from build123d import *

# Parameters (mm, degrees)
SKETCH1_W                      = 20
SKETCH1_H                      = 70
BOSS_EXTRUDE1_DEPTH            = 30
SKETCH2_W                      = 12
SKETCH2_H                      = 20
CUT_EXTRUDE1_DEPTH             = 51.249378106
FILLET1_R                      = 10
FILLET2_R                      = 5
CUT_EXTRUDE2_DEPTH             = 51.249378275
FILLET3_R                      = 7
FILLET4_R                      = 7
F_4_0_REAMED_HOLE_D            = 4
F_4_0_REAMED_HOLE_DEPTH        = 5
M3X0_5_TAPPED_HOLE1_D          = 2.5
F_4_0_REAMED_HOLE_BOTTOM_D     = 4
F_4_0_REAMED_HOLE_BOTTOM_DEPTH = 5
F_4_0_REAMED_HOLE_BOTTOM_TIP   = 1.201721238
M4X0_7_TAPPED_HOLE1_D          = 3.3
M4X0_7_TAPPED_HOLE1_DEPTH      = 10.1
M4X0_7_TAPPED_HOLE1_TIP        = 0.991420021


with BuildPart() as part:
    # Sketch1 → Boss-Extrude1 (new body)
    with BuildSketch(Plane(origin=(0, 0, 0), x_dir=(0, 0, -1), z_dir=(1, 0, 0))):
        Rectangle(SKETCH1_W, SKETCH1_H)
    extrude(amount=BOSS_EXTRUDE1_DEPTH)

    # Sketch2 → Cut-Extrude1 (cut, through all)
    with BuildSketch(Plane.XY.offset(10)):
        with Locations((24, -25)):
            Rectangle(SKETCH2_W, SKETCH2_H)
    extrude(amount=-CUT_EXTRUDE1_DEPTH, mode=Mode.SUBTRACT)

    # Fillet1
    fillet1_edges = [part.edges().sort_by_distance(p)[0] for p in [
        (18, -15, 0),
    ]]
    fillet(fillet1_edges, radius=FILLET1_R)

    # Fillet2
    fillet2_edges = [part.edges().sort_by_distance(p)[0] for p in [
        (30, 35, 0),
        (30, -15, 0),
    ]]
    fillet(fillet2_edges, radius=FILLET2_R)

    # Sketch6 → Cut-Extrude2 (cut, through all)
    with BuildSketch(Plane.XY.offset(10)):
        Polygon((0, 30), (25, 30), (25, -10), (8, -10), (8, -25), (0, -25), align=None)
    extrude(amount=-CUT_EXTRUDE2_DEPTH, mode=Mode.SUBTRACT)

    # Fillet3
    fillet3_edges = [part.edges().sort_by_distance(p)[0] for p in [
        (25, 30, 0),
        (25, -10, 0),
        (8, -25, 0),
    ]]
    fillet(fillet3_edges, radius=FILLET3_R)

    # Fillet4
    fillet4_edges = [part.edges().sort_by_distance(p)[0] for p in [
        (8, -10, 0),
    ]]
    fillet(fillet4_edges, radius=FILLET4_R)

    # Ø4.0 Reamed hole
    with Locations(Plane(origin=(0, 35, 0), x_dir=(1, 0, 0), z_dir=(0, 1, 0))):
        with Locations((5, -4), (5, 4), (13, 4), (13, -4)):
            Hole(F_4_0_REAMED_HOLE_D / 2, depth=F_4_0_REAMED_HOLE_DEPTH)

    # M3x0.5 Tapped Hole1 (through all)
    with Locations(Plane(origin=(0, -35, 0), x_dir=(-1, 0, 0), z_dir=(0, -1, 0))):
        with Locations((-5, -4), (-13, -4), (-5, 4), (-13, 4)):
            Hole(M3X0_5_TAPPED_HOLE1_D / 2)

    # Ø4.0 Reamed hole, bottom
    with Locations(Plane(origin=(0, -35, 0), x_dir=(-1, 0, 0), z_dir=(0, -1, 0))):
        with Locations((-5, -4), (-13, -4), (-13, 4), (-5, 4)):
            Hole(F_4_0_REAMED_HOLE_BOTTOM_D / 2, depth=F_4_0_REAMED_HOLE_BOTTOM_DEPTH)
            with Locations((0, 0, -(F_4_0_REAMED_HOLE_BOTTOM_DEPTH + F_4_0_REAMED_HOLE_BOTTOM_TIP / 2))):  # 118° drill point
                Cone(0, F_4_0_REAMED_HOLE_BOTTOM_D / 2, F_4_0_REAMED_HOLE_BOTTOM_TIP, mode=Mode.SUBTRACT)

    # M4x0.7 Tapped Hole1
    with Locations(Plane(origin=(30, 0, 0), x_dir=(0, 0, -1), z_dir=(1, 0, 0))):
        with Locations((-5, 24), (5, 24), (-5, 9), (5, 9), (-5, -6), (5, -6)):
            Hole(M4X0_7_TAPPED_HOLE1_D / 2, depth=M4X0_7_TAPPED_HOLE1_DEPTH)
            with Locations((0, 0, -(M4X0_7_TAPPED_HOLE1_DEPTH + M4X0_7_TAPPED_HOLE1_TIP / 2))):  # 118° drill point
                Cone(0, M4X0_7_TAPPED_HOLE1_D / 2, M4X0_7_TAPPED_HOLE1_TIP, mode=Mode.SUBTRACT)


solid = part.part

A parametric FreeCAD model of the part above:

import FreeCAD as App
import Part
import Sketcher
from FreeCAD import Vector
Q = App.Units.Quantity


def edges_at(feature, points):
    """Names of the edges that pass closest to the given points."""
    edges = feature.Shape.Edges
    near = lambda p: min(range(len(edges)), key=lambda i: edges[i].distToShape(Part.Vertex(*p))[0])
    return sorted({f"Edge{near(p) + 1}" for p in points})

doc = App.newDocument("Part")
body = doc.addObject("PartDesign::Body", "Body")

# Sketch on YZ plane
sketch1 = doc.addObject("Sketcher::SketchObject", "Sketch")
body.addObject(sketch1)
sketch1.AttachmentSupport = (doc.YZ_Plane, [""])
sketch1.MapMode = "FlatFace"
sketch1.addGeometry(Part.LineSegment(Vector(35, 10, 0), Vector(-35, 10, 0)), False)
sketch1.addGeometry(Part.LineSegment(Vector(-35, 10, 0), Vector(-35, -10, 0)), False)
sketch1.addGeometry(Part.LineSegment(Vector(-35, -10, 0), Vector(35, -10, 0)), False)
sketch1.addGeometry(Part.LineSegment(Vector(35, -10, 0), Vector(35, 10, 0)), False)
sketch1.addConstraint(Sketcher.Constraint("Coincident", 0, 2, 1, 1))
sketch1.addConstraint(Sketcher.Constraint("Coincident", 1, 2, 2, 1))
sketch1.addConstraint(Sketcher.Constraint("Coincident", 2, 2, 3, 1))
sketch1.addConstraint(Sketcher.Constraint("Coincident", 3, 2, 0, 1))
sketch1.addConstraint(Sketcher.Constraint("Horizontal", 0))
sketch1.addConstraint(Sketcher.Constraint("Vertical", 1))
sketch1.addConstraint(Sketcher.Constraint("Horizontal", 2))
sketch1.addConstraint(Sketcher.Constraint("Vertical", 3))
sketch1.addConstraint(Sketcher.Constraint("Symmetric", 0, 2, 2, 2, -1, 1))
sketch1.addConstraint(Sketcher.Constraint("DistanceX", 0, 2, 0, 1, Q("70 mm")))
sketch1.addConstraint(Sketcher.Constraint("DistanceY", 1, 2, 1, 1, Q("20 mm")))
pad1 = doc.addObject("PartDesign::Pad", "Pad")
body.addObject(pad1)
pad1.Profile = sketch1
pad1.Length = 30

# Sketch on XY plane
sketch2 = doc.addObject("Sketcher::SketchObject", "Sketch001")
body.addObject(sketch2)
sketch2.AttachmentSupport = (doc.XY_Plane, [""])
sketch2.MapMode = "FlatFace"
sketch2.AttachmentOffset = App.Placement(Vector(0, 0, 10), App.Rotation())
sketch2.addGeometry(Part.LineSegment(Vector(18, -15, 0), Vector(18, -35, 0)), False)
sketch2.addGeometry(Part.LineSegment(Vector(18, -35, 0), Vector(30, -35, 0)), False)
sketch2.addGeometry(Part.LineSegment(Vector(30, -35, 0), Vector(30, -15, 0)), False)
sketch2.addGeometry(Part.LineSegment(Vector(30, -15, 0), Vector(18, -15, 0)), False)
sketch2.addConstraint(Sketcher.Constraint("Coincident", 0, 2, 1, 1))
sketch2.addConstraint(Sketcher.Constraint("Coincident", 1, 2, 2, 1))
sketch2.addConstraint(Sketcher.Constraint("Coincident", 2, 2, 3, 1))
sketch2.addConstraint(Sketcher.Constraint("Coincident", 3, 2, 0, 1))
sketch2.addConstraint(Sketcher.Constraint("Vertical", 0))
sketch2.addConstraint(Sketcher.Constraint("Horizontal", 1))
sketch2.addConstraint(Sketcher.Constraint("Vertical", 2))
sketch2.addConstraint(Sketcher.Constraint("Horizontal", 3))
sketch2.addConstraint(Sketcher.Constraint("DistanceX", 1, 1, 1, 2, Q("12 mm")))
sketch2.addConstraint(Sketcher.Constraint("DistanceY", 0, 2, 0, 1, Q("20 mm")))
sketch2.addConstraint(Sketcher.Constraint("DistanceX", -1, 1, 0, 2, Q("18 mm")))
sketch2.addConstraint(Sketcher.Constraint("DistanceY", 0, 2, -1, 1, Q("35 mm")))
pocket1 = doc.addObject("PartDesign::Pocket", "Pocket")
body.addObject(pocket1)
pocket1.Profile = sketch2
pocket1.Type = "ThroughAll"
doc.recompute()

fillet = doc.addObject("PartDesign::Fillet", "Fillet")
body.addObject(fillet)
fillet.Base = (pocket1, edges_at(pocket1, [(18, -15, 0)]))
fillet.Radius = 10
doc.recompute()

fillet2 = doc.addObject("PartDesign::Fillet", "Fillet001")
body.addObject(fillet2)
fillet2.Base = (fillet, edges_at(fillet, [(30, 35, 0), (30, -15, 0)]))
fillet2.Radius = 5

# Sketch on XY plane
sketch3 = doc.addObject("Sketcher::SketchObject", "Sketch002")
body.addObject(sketch3)
sketch3.AttachmentSupport = (doc.XY_Plane, [""])
sketch3.MapMode = "FlatFace"
sketch3.AttachmentOffset = App.Placement(Vector(0, 0, 10), App.Rotation())
sketch3.addGeometry(Part.LineSegment(Vector(25, 30, 0), Vector(0, 30, 0)), False)
sketch3.addGeometry(Part.LineSegment(Vector(0, 30, 0), Vector(0, -25, 0)), False)
sketch3.addGeometry(Part.LineSegment(Vector(0, -25, 0), Vector(8, -25, 0)), False)
sketch3.addGeometry(Part.LineSegment(Vector(8, -25, 0), Vector(8, -10, 0)), False)
sketch3.addGeometry(Part.LineSegment(Vector(8, -10, 0), Vector(25, -10, 0)), False)
sketch3.addGeometry(Part.LineSegment(Vector(25, -10, 0), Vector(25, 30, 0)), False)
sketch3.addConstraint(Sketcher.Constraint("Coincident", 0, 2, 1, 1))
sketch3.addConstraint(Sketcher.Constraint("Coincident", 1, 2, 2, 1))
sketch3.addConstraint(Sketcher.Constraint("Coincident", 2, 2, 3, 1))
sketch3.addConstraint(Sketcher.Constraint("Coincident", 3, 2, 4, 1))
sketch3.addConstraint(Sketcher.Constraint("Coincident", 4, 2, 5, 1))
sketch3.addConstraint(Sketcher.Constraint("Coincident", 5, 2, 0, 1))
sketch3.addConstraint(Sketcher.Constraint("Horizontal", 0))
sketch3.addConstraint(Sketcher.Constraint("Vertical", 1))
sketch3.addConstraint(Sketcher.Constraint("Horizontal", 2))
sketch3.addConstraint(Sketcher.Constraint("Vertical", 3))
sketch3.addConstraint(Sketcher.Constraint("Horizontal", 4))
sketch3.addConstraint(Sketcher.Constraint("Vertical", 5))
sketch3.addConstraint(Sketcher.Constraint("PointOnObject", 0, 2, -2))
sketch3.addConstraint(Sketcher.Constraint("DistanceX", 0, 2, 0, 1, Q("25 mm")))
sketch3.addConstraint(Sketcher.Constraint("DistanceX", 2, 1, 2, 2, Q("8 mm")))
sketch3.addConstraint(Sketcher.Constraint("DistanceY", 1, 2, 1, 1, Q("55 mm")))
sketch3.addConstraint(Sketcher.Constraint("DistanceY", 3, 1, 3, 2, Q("15 mm")))
sketch3.addConstraint(Sketcher.Constraint("DistanceY", -1, 1, 0, 2, Q("30 mm")))
pocket2 = doc.addObject("PartDesign::Pocket", "Pocket001")
body.addObject(pocket2)
pocket2.Profile = sketch3
pocket2.Type = "ThroughAll"
doc.recompute()

fillet3 = doc.addObject("PartDesign::Fillet", "Fillet002")
body.addObject(fillet3)
fillet3.Base = (pocket2, edges_at(pocket2, [(25, 30, 0), (25, -10, 0), (8, -25, 0)]))
fillet3.Radius = 7
doc.recompute()

fillet4 = doc.addObject("PartDesign::Fillet", "Fillet003")
body.addObject(fillet4)
fillet4.Base = (fillet3, edges_at(fillet3, [(8, -10, 0)]))
fillet4.Radius = 7

# Sketch on XZ plane
sketch4 = doc.addObject("Sketcher::SketchObject", "Sketch003")
body.addObject(sketch4)
sketch4.AttachmentSupport = (doc.XZ_Plane, [""])
sketch4.MapMode = "FlatFace"
sketch4.AttachmentOffset = App.Placement(Vector(0, 0, -35), App.Rotation())
sketch4.addGeometry(Part.Circle(Vector(5, 4, 0), Vector(0, 0, 1), 2), False)
sketch4.addGeometry(Part.Circle(Vector(5, -4, 0), Vector(0, 0, 1), 2), False)
sketch4.addGeometry(Part.Circle(Vector(13, -4, 0), Vector(0, 0, 1), 2), False)
sketch4.addGeometry(Part.Circle(Vector(13, 4, 0), Vector(0, 0, 1), 2), False)
sketch4.addConstraint(Sketcher.Constraint("Equal", 0, 1))
sketch4.addConstraint(Sketcher.Constraint("Equal", 1, 2))
sketch4.addConstraint(Sketcher.Constraint("Equal", 2, 3))
sketch4.addConstraint(Sketcher.Constraint("Symmetric", 0, 3, 1, 3, -1))
sketch4.addConstraint(Sketcher.Constraint("Symmetric", 2, 3, 3, 3, -1))
sketch4.addConstraint(Sketcher.Constraint("Horizontal", 1, 3, 2, 3))
sketch4.addConstraint(Sketcher.Constraint("Diameter", 0, Q("4 mm")))
sketch4.addConstraint(Sketcher.Constraint("DistanceX", -1, 1, 0, 3, Q("5 mm")))
sketch4.addConstraint(Sketcher.Constraint("DistanceY", -1, 1, 0, 3, Q("4 mm")))
sketch4.addConstraint(Sketcher.Constraint("DistanceX", -1, 1, 2, 3, Q("13 mm")))
doc.recompute()
hole = doc.addObject("PartDesign::Hole", "Hole")
body.addObject(hole)
hole.Profile = sketch4
hole.ThreadType = "None"
hole.Diameter = 4
hole.DepthType = "Dimension"
hole.Depth = 5
hole.DrillPoint = "Flat"
hole.Reversed = True

# Sketch on XZ plane
sketch5 = doc.addObject("Sketcher::SketchObject", "Sketch004")
body.addObject(sketch5)
sketch5.AttachmentSupport = (doc.XZ_Plane, [""])
sketch5.MapMode = "FlatFace"
sketch5.AttachmentOffset = App.Placement(Vector(0, 0, 35), App.Rotation())
sketch5.addGeometry(Part.Circle(Vector(5, 4, 0), Vector(0, 0, 1), 1.2), False)
sketch5.addGeometry(Part.Circle(Vector(13, 4, 0), Vector(0, 0, 1), 1.2), False)
sketch5.addGeometry(Part.Circle(Vector(5, -4, 0), Vector(0, 0, 1), 1.2), False)
sketch5.addGeometry(Part.Circle(Vector(13, -4, 0), Vector(0, 0, 1), 1.2), False)
sketch5.addConstraint(Sketcher.Constraint("Equal", 0, 1))
sketch5.addConstraint(Sketcher.Constraint("Equal", 1, 2))
sketch5.addConstraint(Sketcher.Constraint("Equal", 2, 3))
sketch5.addConstraint(Sketcher.Constraint("Symmetric", 0, 3, 2, 3, -1))
sketch5.addConstraint(Sketcher.Constraint("Symmetric", 1, 3, 3, 3, -1))
sketch5.addConstraint(Sketcher.Constraint("Horizontal", 0, 3, 1, 3))
sketch5.addConstraint(Sketcher.Constraint("Diameter", 0, Q("2.5 mm")))
sketch5.addConstraint(Sketcher.Constraint("DistanceX", -1, 1, 0, 3, Q("5 mm")))
sketch5.addConstraint(Sketcher.Constraint("DistanceY", -1, 1, 0, 3, Q("4 mm")))
sketch5.addConstraint(Sketcher.Constraint("DistanceX", -1, 1, 1, 3, Q("13 mm")))
doc.recompute()
hole2 = doc.addObject("PartDesign::Hole", "Hole001")
body.addObject(hole2)
hole2.Profile = sketch5
hole2.ThreadType = "None"
hole2.Diameter = 2.5
hole2.DepthType = "ThroughAll"

# Sketch on XZ plane
sketch6 = doc.addObject("Sketcher::SketchObject", "Sketch005")
body.addObject(sketch6)
sketch6.AttachmentSupport = (doc.XZ_Plane, [""])
sketch6.MapMode = "FlatFace"
sketch6.AttachmentOffset = App.Placement(Vector(0, 0, 35), App.Rotation())
sketch6.addGeometry(Part.Circle(Vector(5, 4, 0), Vector(0, 0, 1), 2), False)
sketch6.addGeometry(Part.Circle(Vector(13, 4, 0), Vector(0, 0, 1), 2), False)
sketch6.addGeometry(Part.Circle(Vector(13, -4, 0), Vector(0, 0, 1), 2), False)
sketch6.addGeometry(Part.Circle(Vector(5, -4, 0), Vector(0, 0, 1), 2), False)
sketch6.addConstraint(Sketcher.Constraint("Equal", 0, 1))
sketch6.addConstraint(Sketcher.Constraint("Equal", 1, 2))
sketch6.addConstraint(Sketcher.Constraint("Equal", 2, 3))
sketch6.addConstraint(Sketcher.Constraint("Symmetric", 1, 3, 2, 3, -1))
sketch6.addConstraint(Sketcher.Constraint("Symmetric", 0, 3, 3, 3, -1))
sketch6.addConstraint(Sketcher.Constraint("Horizontal", 0, 3, 1, 3))
sketch6.addConstraint(Sketcher.Constraint("Diameter", 0, Q("4 mm")))
sketch6.addConstraint(Sketcher.Constraint("DistanceX", -1, 1, 0, 3, Q("5 mm")))
sketch6.addConstraint(Sketcher.Constraint("DistanceY", -1, 1, 0, 3, Q("4 mm")))
sketch6.addConstraint(Sketcher.Constraint("DistanceX", -1, 1, 1, 3, Q("13 mm")))
doc.recompute()
hole3 = doc.addObject("PartDesign::Hole", "Hole002")
body.addObject(hole3)
hole3.Profile = sketch6
hole3.ThreadType = "None"
hole3.Diameter = 4
hole3.DepthType = "Dimension"
hole3.Depth = 5
hole3.DrillPoint = "Angled"
hole3.DrillPointAngle = 118

# Sketch on YZ plane
sketch7 = doc.addObject("Sketcher::SketchObject", "Sketch006")
body.addObject(sketch7)
sketch7.AttachmentSupport = (doc.YZ_Plane, [""])
sketch7.MapMode = "FlatFace"
sketch7.AttachmentOffset = App.Placement(Vector(0, 0, 30), App.Rotation())
sketch7.addGeometry(Part.Circle(Vector(24, 5, 0), Vector(0, 0, 1), 1.6), False)
sketch7.addGeometry(Part.Circle(Vector(24, -5, 0), Vector(0, 0, 1), 1.6), False)
sketch7.addGeometry(Part.Circle(Vector(9, 5, 0), Vector(0, 0, 1), 1.6), False)
sketch7.addGeometry(Part.Circle(Vector(9, -5, 0), Vector(0, 0, 1), 1.6), False)
sketch7.addGeometry(Part.Circle(Vector(-6, 5, 0), Vector(0, 0, 1), 1.6), False)
sketch7.addGeometry(Part.Circle(Vector(-6, -5, 0), Vector(0, 0, 1), 1.6), False)
sketch7.addConstraint(Sketcher.Constraint("Equal", 0, 1))
sketch7.addConstraint(Sketcher.Constraint("Equal", 1, 2))
sketch7.addConstraint(Sketcher.Constraint("Equal", 2, 3))
sketch7.addConstraint(Sketcher.Constraint("Equal", 3, 4))
sketch7.addConstraint(Sketcher.Constraint("Equal", 4, 5))
sketch7.addConstraint(Sketcher.Constraint("Symmetric", 0, 3, 1, 3, -1))
sketch7.addConstraint(Sketcher.Constraint("Symmetric", 2, 3, 3, 3, -1))
sketch7.addConstraint(Sketcher.Constraint("Symmetric", 4, 3, 5, 3, -1))
sketch7.addConstraint(Sketcher.Constraint("Horizontal", 0, 3, 2, 3))
sketch7.addConstraint(Sketcher.Constraint("Horizontal", 2, 3, 4, 3))
sketch7.addConstraint(Sketcher.Constraint("Diameter", 0, Q("3.3 mm")))
sketch7.addConstraint(Sketcher.Constraint("DistanceX", -1, 1, 0, 3, Q("24 mm")))
sketch7.addConstraint(Sketcher.Constraint("DistanceY", -1, 1, 0, 3, Q("5 mm")))
sketch7.addConstraint(Sketcher.Constraint("DistanceX", -1, 1, 2, 3, Q("9 mm")))
sketch7.addConstraint(Sketcher.Constraint("DistanceX", 4, 3, -1, 1, Q("6 mm")))
doc.recompute()
hole4 = doc.addObject("PartDesign::Hole", "Hole003")
body.addObject(hole4)
hole4.Profile = sketch7
hole4.ThreadType = "None"
hole4.Diameter = 3.3
hole4.DepthType = "Dimension"
hole4.Depth = 10.1
hole4.DrillPoint = "Angled"
hole4.DrillPointAngle = 118

doc.recompute()
